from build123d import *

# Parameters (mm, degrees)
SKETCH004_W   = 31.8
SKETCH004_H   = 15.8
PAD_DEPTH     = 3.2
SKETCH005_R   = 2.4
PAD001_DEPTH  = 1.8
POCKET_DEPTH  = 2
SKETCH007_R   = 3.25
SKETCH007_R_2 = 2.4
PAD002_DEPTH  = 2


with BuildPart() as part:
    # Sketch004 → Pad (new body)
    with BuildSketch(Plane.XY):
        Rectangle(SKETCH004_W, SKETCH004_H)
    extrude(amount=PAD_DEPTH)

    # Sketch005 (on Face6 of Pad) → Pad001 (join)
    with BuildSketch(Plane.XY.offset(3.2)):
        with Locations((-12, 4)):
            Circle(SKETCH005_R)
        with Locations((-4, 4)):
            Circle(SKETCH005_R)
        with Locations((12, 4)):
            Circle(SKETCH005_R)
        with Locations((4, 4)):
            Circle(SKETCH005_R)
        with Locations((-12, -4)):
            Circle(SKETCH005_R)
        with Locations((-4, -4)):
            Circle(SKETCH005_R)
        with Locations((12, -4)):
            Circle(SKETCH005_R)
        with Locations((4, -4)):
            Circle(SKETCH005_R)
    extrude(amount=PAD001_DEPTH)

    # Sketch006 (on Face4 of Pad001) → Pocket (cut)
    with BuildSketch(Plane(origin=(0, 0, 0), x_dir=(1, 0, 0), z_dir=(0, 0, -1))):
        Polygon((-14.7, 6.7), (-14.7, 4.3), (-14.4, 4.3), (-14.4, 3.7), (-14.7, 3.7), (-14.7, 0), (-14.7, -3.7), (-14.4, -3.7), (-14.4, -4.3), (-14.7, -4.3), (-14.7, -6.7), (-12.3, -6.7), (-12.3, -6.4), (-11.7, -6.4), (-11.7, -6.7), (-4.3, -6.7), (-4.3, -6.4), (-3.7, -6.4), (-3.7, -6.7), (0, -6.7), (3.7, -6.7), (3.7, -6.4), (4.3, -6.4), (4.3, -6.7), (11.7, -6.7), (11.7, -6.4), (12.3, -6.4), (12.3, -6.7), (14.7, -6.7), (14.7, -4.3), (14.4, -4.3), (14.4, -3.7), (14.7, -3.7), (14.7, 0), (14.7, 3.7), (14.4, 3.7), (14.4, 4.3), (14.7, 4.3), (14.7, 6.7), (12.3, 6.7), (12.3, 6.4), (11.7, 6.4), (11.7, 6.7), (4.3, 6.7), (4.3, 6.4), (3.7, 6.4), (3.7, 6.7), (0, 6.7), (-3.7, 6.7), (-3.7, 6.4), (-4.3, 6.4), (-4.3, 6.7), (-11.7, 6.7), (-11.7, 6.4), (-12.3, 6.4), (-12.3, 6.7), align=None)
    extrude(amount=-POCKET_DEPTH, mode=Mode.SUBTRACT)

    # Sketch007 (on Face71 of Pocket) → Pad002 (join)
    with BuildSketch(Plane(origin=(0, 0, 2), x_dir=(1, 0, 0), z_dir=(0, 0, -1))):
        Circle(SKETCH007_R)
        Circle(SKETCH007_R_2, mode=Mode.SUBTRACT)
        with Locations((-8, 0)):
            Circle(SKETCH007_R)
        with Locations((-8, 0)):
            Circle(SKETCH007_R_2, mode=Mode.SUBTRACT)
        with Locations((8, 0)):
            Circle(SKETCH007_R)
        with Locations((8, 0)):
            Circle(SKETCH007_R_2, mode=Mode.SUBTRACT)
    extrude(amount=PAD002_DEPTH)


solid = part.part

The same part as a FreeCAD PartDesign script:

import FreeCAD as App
import Part
import Sketcher

V = App.Vector


def add_polygon(sketch, points):
    """Adds a closed chain of lines whose ends are joined by coincident constraints."""
    first, n = sketch.GeometryCount, len(points)
    for a, b in zip(points, points[1:] + points[:1]):
        sketch.addGeometry(Part.LineSegment(App.Vector(*a, 0), App.Vector(*b, 0)), False)
    for i in range(n):
        sketch.addConstraint(Sketcher.Constraint("Coincident", first + i, 2, first + (i + 1) % n, 1))

doc = App.newDocument("Part")
body = doc.addObject("PartDesign::Body", "Body")

sketch1 = body.newObject("Sketcher::SketchObject", "Sketch")
sketch1.AttachmentSupport = (doc.getObject("XY_Plane"), [""])
sketch1.MapMode = "FlatFace"
add_polygon(sketch1, [(-16, 8), (-16, -8), (16, -8), (16, 8)])
sketch1.addConstraint(Sketcher.Constraint("Vertical", 0))
sketch1.addConstraint(Sketcher.Constraint("Horizontal", 1))
sketch1.addConstraint(Sketcher.Constraint("Vertical", 2))
sketch1.addConstraint(Sketcher.Constraint("Horizontal", 3))
sketch1.addConstraint(Sketcher.Constraint("Symmetric", 0, 2, 2, 2, -1, 1))
sketch1.addConstraint(Sketcher.Constraint("DistanceX", 1, 1, 1, 2, 31.8))
sketch1.addConstraint(Sketcher.Constraint("DistanceY", 0, 2, 0, 1, 15.8))
pad1 = body.newObject("PartDesign::Pad", "Pad")
pad1.Profile = sketch1
pad1.Length = 3.2

sketch2 = body.newObject("Sketcher::SketchObject", "Sketch001")
sketch2.AttachmentSupport = (doc.getObject("XY_Plane"), [""])
sketch2.MapMode = "FlatFace"
sketch2.AttachmentOffset = App.Placement(V(0, 0, 3.2), App.Rotation())
sketch2.addGeometry(Part.Circle(V(-12, 4, 0), V(0, 0, 1), 2.4), False)
sketch2.addGeometry(Part.Circle(V(-4, 4, 0), V(0, 0, 1), 2.4), False)
sketch2.addGeometry(Part.Circle(V(12, 4, 0), V(0, 0, 1), 2.4), False)
sketch2.addGeometry(Part.Circle(V(4, 4, 0), V(0, 0, 1), 2.4), False)
sketch2.addGeometry(Part.Circle(V(-12, -4, 0), V(0, 0, 1), 2.4), False)
sketch2.addGeometry(Part.Circle(V(-4, -4, 0), V(0, 0, 1), 2.4), False)
sketch2.addGeometry(Part.Circle(V(12, -4, 0), V(0, 0, 1), 2.4), False)
sketch2.addGeometry(Part.Circle(V(4, -4, 0), V(0, 0, 1), 2.4), False)
sketch2.addConstraint(Sketcher.Constraint("Equal", 0, 1))
sketch2.addConstraint(Sketcher.Constraint("Equal", 1, 2))
sketch2.addConstraint(Sketcher.Constraint("Equal", 2, 3))
sketch2.addConstraint(Sketcher.Constraint("Equal", 3, 4))
sketch2.addConstraint(Sketcher.Constraint("Equal", 4, 5))
sketch2.addConstraint(Sketcher.Constraint("Equal", 5, 6))
sketch2.addConstraint(Sketcher.Constraint("Equal", 6, 7))
sketch2.addConstraint(Sketcher.Constraint("Symmetric", 2, 3, 4, 3, -1, 1))
sketch2.addConstraint(Sketcher.Constraint("Symmetric", 3, 3, 5, 3, -1, 1))
sketch2.addConstraint(Sketcher.Constraint("Symmetric", 0, 3, 6, 3, -1, 1))
sketch2.addConstraint(Sketcher.Constraint("Symmetric", 1, 3, 7, 3, -1, 1))
sketch2.addConstraint(Sketcher.Constraint("Symmetric", 0, 3, 2, 3, -2))
sketch2.addConstraint(Sketcher.Constraint("Symmetric", 1, 3, 3, 3, -2))
sketch2.addConstraint(Sketcher.Constraint("Horizontal", 0, 3, 1, 3))
sketch2.addConstraint(Sketcher.Constraint("Diameter", 0, 4.8))
sketch2.addConstraint(Sketcher.Constraint("DistanceX", 0, 3, -1, 1, 12.0))
sketch2.addConstraint(Sketcher.Constraint("DistanceY", -1, 1, 0, 3, 4.0))
sketch2.addConstraint(Sketcher.Constraint("DistanceX", 1, 3, -1, 1, 4.0))
pad2 = body.newObject("PartDesign::Pad", "Pad001")
pad2.Profile = sketch2
pad2.Length = 1.8

sketch3 = body.newObject("Sketcher::SketchObject", "Sketch002")
sketch3.AttachmentSupport = (doc.getObject("XY_Plane"), [""])
sketch3.MapMode = "FlatFace"
add_polygon(sketch3, [(-14.7, -6.7), (-14.7, -4.3), (-14.4, -4.3), (-14.4, -3.7), (-14.7, -3.7), (-14.7, 3.7), (-14.4, 3.7), (-14.4, 4.3), (-14.7, 4.3), (-14.7, 6.7), (-12.3, 6.7), (-12.3, 6.4), (-11.7, 6.4), (-11.7, 6.7), (-4.3, 6.7), (-4.3, 6.4), (-3.7, 6.4), (-3.7, 6.7), (3.7, 6.7), (3.7, 6.4), (4.3, 6.4), (4.3, 6.7), (11.7, 6.7), (11.7, 6.4), (12.3, 6.4), (12.3, 6.7), (14.7, 6.7), (14.7, 4.3), (14.4, 4.3), (14.4, 3.7), (14.7, 3.7), (14.7, -3.7), (14.4, -3.7), (14.4, -4.3), (14.7, -4.3), (14.7, -6.7), (12.3, -6.7), (12.3, -6.4), (11.7, -6.4), (11.7, -6.7), (4.3, -6.7), (4.3, -6.4), (3.7, -6.4), (3.7, -6.7), (-3.7, -6.7), (-3.7, -6.4), (-4.3, -6.4), (-4.3, -6.7), (-11.7, -6.7), (-11.7, -6.4), (-12.3, -6.4), (-12.3, -6.7)])
sketch3.addConstraint(Sketcher.Constraint("Vertical", 0))
sketch3.addConstraint(Sketcher.Constraint("Horizontal", 1))
sketch3.addConstraint(Sketcher.Constraint("Vertical", 2))
sketch3.addConstraint(Sketcher.Constraint("Horizontal", 3))
sketch3.addConstraint(Sketcher.Constraint("Vertical", 4))
sketch3.addConstraint(Sketcher.Constraint("Horizontal", 5))
sketch3.addConstraint(Sketcher.Constraint("Vertical", 6))
sketch3.addConstraint(Sketcher.Constraint("Horizontal", 7))
sketch3.addConstraint(Sketcher.Constraint("Vertical", 8))
sketch3.addConstraint(Sketcher.Constraint("Horizontal", 9))
sketch3.addConstraint(Sketcher.Constraint("Vertical", 10))
sketch3.addConstraint(Sketcher.Constraint("Horizontal", 11))
sketch3.addConstraint(Sketcher.Constraint("Vertical", 12))
sketch3.addConstraint(Sketcher.Constraint("Horizontal", 13))
sketch3.addConstraint(Sketcher.Constraint("Vertical", 14))
sketch3.addConstraint(Sketcher.Constraint("Horizontal", 15))
sketch3.addConstraint(Sketcher.Constraint("Vertical", 16))
sketch3.addConstraint(Sketcher.Constraint("Horizontal", 17))
sketch3.addConstraint(Sketcher.Constraint("Vertical", 18))
sketch3.addConstraint(Sketcher.Constraint("Horizontal", 19))
sketch3.addConstraint(Sketcher.Constraint("Vertical", 20))
sketch3.addConstraint(Sketcher.Constraint("Horizontal", 21))
sketch3.addConstraint(Sketcher.Constraint("Vertical", 22))
sketch3.addConstraint(Sketcher.Constraint("Horizontal", 23))
sketch3.addConstraint(Sketcher.Constraint("Vertical", 24))
sketch3.addConstraint(Sketcher.Constraint("Horizontal", 25))
sketch3.addConstraint(Sketcher.Constraint("Vertical", 26))
sketch3.addConstraint(Sketcher.Constraint("Horizontal", 27))
sketch3.addConstraint(Sketcher.Constraint("Vertical", 28))
sketch3.addConstraint(Sketcher.Constraint("Horizontal", 29))
sketch3.addConstraint(Sketcher.Constraint("Vertical", 30))
sketch3.addConstraint(Sketcher.Constraint("Horizontal", 31))
sketch3.addConstraint(Sketcher.Constraint("Vertical", 32))
sketch3.addConstraint(Sketcher.Constraint("Horizontal", 33))
sketch3.addConstraint(Sketcher.Constraint("Vertical", 34))
sketch3.addConstraint(Sketcher.Constraint("Horizontal", 35))
sketch3.addConstraint(Sketcher.Constraint("Vertical", 36))
sketch3.addConstraint(Sketcher.Constraint("Horizontal", 37))
sketch3.addConstraint(Sketcher.Constraint("Vertical", 38))
sketch3.addConstraint(Sketcher.Constraint("Horizontal", 39))
sketch3.addConstraint(Sketcher.Constraint("Vertical", 40))
sketch3.addConstraint(Sketcher.Constraint("Horizontal", 41))
sketch3.addConstraint(Sketcher.Constraint("Vertical", 42))
sketch3.addConstraint(Sketcher.Constraint("Horizontal", 43))
sketch3.addConstraint(Sketcher.Constraint("Vertical", 44))
sketch3.addConstraint(Sketcher.Constraint("Horizontal", 45))
sketch3.addConstraint(Sketcher.Constraint("Vertical", 46))
sketch3.addConstraint(Sketcher.Constraint("Horizontal", 47))
sketch3.addConstraint(Sketcher.Constraint("Vertical", 48))
sketch3.addConstraint(Sketcher.Constraint("Horizontal", 49))
sketch3.addConstraint(Sketcher.Constraint("Vertical", 50))
sketch3.addConstraint(Sketcher.Constraint("Horizontal", 51))
sketch3.addConstraint(Sketcher.Constraint("Symmetric", 0, 2, 26, 2, -1, 1))
sketch3.addConstraint(Sketcher.Constraint("Symmetric", 2, 2, 28, 2, -1, 1))
sketch3.addConstraint(Sketcher.Constraint("Symmetric", 4, 2, 30, 2, -1, 1))
sketch3.addConstraint(Sketcher.Constraint("Symmetric", 6, 2, 32, 2, -1, 1))
sketch3.addConstraint(Sketcher.Constraint("Symmetric", 8, 2, 34, 2, -1, 1))
sketch3.addConstraint(Sketcher.Constraint("Symmetric", 10, 2, 36, 2, -1, 1))
sketch3.addConstraint(Sketcher.Constraint("Symmetric", 12, 2, 38, 2, -1, 1))
sketch3.addConstraint(Sketcher.Constraint("Symmetric", 14, 2, 40, 2, -1, 1))
sketch3.addConstraint(Sketcher.Constraint("Symmetric", 16, 2, 42, 2, -1, 1))
sketch3.addConstraint(Sketcher.Constraint("Symmetric", 18, 2, 44, 2, -1, 1))
sketch3.addConstraint(Sketcher.Constraint("Symmetric", 20, 2, 46, 2, -1, 1))
sketch3.addConstraint(Sketcher.Constraint("Symmetric", 22, 2, 48, 2, -1, 1))
sketch3.addConstraint(Sketcher.Constraint("Symmetric", 24, 2, 50, 2, -1, 1))
sketch3.addConstraint(Sketcher.Constraint("Symmetric", 15, 2, 18, 2, -2))
sketch3.addConstraint(Sketcher.Constraint("Symmetric", 13, 2, 20, 2, -2))
sketch3.addConstraint(Sketcher.Constraint("Symmetric", 11, 2, 22, 2, -2))
sketch3.addConstraint(Sketcher.Constraint("Symmetric", 9, 2, 24, 2, -2))
sketch3.addConstraint(Sketcher.Constraint("Symmetric", 7, 2, 26, 2, -2))
sketch3.addConstraint(Sketcher.Constraint("Symmetric", 5, 2, 28, 2, -2))
sketch3.addConstraint(Sketcher.Constraint("Horizontal", 9, 2, 12, 2))
sketch3.addConstraint(Sketcher.Constraint("Horizontal", 11, 2, 14, 2))
sketch3.addConstraint(Sketcher.Constraint("Horizontal", 13, 2, 16, 2))
sketch3.addConstraint(Sketcher.Constraint("Vertical", 0, 2, 3, 2))
sketch3.addConstraint(Sketcher.Constraint("Equal", 11, 15))
sketch3.addConstraint(Sketcher.Constraint("Equal", 13, 17))
sketch3.addConstraint(Sketcher.Constraint("Equal", 51, 0))
sketch3.addConstraint(Sketcher.Constraint("Equal", 49, 2))
sketch3.addConstraint(Sketcher.Constraint("Equal", 47, 4))
sketch3.addConstraint(Sketcher.Constraint("Equal", 33, 10))
sketch3.addConstraint(Sketcher.Constraint("DistanceX", 1, 1, 1, 2, 0.3))
sketch3.addConstraint(Sketcher.Constraint("DistanceX", 9, 1, 9, 2, 2.4))
sketch3.addConstraint(Sketcher.Constraint("DistanceX", 11, 1, 11, 2, 0.6))
sketch3.addConstraint(Sketcher.Constraint("DistanceX", 13, 1, 13, 2, 7.4))
pocket1 = body.newObject("PartDesign::Pocket", "Pocket")
pocket1.Profile = sketch3
pocket1.Length = 2
pocket1.Reversed = True

sketch4 = body.newObject("Sketcher::SketchObject", "Sketch003")
sketch4.AttachmentSupport = (doc.getObject("XY_Plane"), [""])
sketch4.MapMode = "FlatFace"
sketch4.AttachmentOffset = App.Placement(V(0, 0, 2), App.Rotation())
sketch4.addGeometry(Part.Circle(V(0, 0, 0), V(0, 0, 1), 3.2), False)
sketch4.addGeometry(Part.Circle(V(0, 0, 0), V(0, 0, 1), 2.4), False)
sketch4.addGeometry(Part.Circle(V(-8, 0, 0), V(0, 0, 1), 3.2), False)
sketch4.addGeometry(Part.Circle(V(-8, 0, 0), V(0, 0, 1), 2.4), False)
sketch4.addGeometry(Part.Circle(V(8, 0, 0), V(0, 0, 1), 3.2), False)
sketch4.addGeometry(Part.Circle(V(8, 0, 0), V(0, 0, 1), 2.4), False)
sketch4.addConstraint(Sketcher.Constraint("Coincident", 0, 3, -1, 1))
sketch4.addConstraint(Sketcher.Constraint("Coincident", 1, 3, -1, 1))
sketch4.addConstraint(Sketcher.Constraint("Coincident", 3, 3, 2, 3))
sketch4.addConstraint(Sketcher.Constraint("Coincident", 5, 3, 4, 3))
sketch4.addConstraint(Sketcher.Constraint("Equal", 0, 2))
sketch4.addConstraint(Sketcher.Constraint("Equal", 1, 3))
sketch4.addConstraint(Sketcher.Constraint("Equal", 2, 4))
sketch4.addConstraint(Sketcher.Constraint("Equal", 3, 5))
sketch4.addConstraint(Sketcher.Constraint("Symmetric", 2, 3, 4, 3, -1, 1))
sketch4.addConstraint(Sketcher.Constraint("PointOnObject", 2, 3, -1))
sketch4.addConstraint(Sketcher.Constraint("Diameter", 0, 6.5))
sketch4.addConstraint(Sketcher.Constraint("Diameter", 1, 4.8))
sketch4.addConstraint(Sketcher.Constraint("DistanceX", 2, 3, -1, 1, 8.0))
pad3 = body.newObject("PartDesign::Pad", "Pad002")
pad3.Profile = sketch4
pad3.Length = 2
pad3.Reversed = True

doc.recompute()
